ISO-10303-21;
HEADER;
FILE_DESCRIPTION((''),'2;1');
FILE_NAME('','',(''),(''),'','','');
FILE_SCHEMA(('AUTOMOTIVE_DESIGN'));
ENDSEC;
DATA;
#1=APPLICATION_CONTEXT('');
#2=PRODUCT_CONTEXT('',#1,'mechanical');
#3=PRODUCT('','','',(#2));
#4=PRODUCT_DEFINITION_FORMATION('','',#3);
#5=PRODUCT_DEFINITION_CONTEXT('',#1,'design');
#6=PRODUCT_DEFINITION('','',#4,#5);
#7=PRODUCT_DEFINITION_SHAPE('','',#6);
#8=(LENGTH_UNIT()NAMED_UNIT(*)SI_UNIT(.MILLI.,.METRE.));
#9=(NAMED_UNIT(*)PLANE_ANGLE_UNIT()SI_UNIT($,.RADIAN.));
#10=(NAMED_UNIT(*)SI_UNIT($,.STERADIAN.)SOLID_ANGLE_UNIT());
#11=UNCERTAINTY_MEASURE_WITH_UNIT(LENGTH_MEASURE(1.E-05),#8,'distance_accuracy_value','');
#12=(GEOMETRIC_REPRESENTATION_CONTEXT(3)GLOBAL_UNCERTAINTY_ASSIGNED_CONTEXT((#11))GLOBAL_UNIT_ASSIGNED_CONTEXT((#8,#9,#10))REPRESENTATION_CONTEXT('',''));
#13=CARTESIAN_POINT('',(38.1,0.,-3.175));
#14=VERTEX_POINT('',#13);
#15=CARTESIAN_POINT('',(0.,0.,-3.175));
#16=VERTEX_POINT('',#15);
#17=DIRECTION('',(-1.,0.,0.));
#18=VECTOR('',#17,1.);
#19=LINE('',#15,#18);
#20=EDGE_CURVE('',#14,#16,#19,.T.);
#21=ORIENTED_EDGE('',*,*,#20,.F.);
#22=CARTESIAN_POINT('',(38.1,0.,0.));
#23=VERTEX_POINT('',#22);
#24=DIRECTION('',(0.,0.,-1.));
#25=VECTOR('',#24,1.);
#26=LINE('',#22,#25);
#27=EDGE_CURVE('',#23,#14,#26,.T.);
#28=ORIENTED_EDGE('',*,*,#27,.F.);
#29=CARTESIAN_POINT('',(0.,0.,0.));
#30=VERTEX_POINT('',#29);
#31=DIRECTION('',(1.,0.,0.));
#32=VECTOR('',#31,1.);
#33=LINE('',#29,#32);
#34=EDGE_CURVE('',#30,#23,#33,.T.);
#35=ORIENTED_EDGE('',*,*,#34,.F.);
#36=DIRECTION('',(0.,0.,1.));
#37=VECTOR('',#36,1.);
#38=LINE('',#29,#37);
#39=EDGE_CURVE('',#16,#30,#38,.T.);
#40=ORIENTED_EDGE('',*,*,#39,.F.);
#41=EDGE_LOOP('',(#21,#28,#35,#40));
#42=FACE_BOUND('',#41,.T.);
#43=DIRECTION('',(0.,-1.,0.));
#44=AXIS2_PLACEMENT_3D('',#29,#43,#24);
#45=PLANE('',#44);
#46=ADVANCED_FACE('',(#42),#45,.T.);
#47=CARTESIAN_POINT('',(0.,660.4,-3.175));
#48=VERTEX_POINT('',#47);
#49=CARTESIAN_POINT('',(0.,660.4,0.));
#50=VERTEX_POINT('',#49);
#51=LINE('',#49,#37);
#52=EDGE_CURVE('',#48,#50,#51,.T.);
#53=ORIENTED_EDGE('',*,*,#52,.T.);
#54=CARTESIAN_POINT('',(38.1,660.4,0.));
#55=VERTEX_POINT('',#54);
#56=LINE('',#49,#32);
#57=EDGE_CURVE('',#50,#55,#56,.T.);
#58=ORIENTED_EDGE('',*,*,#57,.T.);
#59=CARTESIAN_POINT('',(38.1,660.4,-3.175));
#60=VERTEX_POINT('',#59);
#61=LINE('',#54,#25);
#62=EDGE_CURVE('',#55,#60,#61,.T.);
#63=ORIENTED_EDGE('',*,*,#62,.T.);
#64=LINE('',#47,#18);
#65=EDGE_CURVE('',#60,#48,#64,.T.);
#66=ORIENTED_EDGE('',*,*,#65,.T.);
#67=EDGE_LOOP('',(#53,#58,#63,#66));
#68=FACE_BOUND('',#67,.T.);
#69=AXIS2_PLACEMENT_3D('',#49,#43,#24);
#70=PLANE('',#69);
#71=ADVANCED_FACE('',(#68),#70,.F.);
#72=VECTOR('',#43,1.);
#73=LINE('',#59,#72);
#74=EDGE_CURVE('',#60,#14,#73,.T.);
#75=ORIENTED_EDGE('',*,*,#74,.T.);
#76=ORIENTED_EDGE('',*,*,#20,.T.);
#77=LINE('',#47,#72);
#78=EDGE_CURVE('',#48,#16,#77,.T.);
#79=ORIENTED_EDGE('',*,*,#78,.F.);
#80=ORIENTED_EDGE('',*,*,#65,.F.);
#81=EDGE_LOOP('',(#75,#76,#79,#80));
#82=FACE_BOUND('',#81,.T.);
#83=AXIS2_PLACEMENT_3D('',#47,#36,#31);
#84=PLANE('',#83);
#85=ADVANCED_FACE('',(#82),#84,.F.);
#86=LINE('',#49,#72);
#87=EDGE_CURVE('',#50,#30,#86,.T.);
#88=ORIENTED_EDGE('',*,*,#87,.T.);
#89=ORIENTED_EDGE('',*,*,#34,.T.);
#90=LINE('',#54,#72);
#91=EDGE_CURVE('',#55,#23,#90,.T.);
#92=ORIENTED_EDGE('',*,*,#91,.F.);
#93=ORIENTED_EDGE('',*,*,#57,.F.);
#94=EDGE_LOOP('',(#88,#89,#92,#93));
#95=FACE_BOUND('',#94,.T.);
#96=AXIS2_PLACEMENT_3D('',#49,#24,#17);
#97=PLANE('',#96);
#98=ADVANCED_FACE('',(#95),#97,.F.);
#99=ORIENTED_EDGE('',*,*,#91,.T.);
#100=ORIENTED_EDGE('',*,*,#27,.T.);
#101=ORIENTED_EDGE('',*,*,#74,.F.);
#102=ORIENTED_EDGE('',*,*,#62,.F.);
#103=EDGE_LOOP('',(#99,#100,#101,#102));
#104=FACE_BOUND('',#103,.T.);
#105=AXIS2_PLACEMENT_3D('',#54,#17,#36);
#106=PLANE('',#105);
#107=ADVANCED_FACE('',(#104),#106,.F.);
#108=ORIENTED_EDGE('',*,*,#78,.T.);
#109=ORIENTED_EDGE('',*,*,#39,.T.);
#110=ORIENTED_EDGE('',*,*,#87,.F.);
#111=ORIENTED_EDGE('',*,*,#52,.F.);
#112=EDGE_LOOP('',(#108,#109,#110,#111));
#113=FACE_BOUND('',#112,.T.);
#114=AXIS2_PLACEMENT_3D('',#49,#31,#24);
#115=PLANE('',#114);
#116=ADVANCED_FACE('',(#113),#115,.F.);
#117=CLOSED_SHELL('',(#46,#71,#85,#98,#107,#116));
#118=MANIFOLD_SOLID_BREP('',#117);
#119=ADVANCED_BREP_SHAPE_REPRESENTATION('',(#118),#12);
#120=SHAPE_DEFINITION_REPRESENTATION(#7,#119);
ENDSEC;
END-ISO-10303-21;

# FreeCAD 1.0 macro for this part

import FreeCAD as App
import Part
import Sketcher

V = App.Vector
Q = App.Units.Quantity

doc = App.newDocument("Part")
params = doc.addObject("Spreadsheet::Sheet", "Params")
for row, (alias, value) in enumerate([
    ("sketch1_width", "1.5 in"),
    ("sketch1_height", "0.125 in"),
    ("pad1_length", "26 in"),
], start=1):
    params.set(f"A{row}", alias)
    params.set(f"B{row}", "=" + value)
    params.setAlias(f"B{row}", alias)

body = doc.addObject("PartDesign::Body", "Body")

# Sketch on XZ plane
sketch1 = doc.addObject("Sketcher::SketchObject", "Sketch")
body.addObject(sketch1)
sketch1.AttachmentSupport = (doc.XZ_Plane, [""])
sketch1.MapMode = "FlatFace"
sketch1.addGeometry([
    Part.LineSegment(V(0, -3.2, 0), V(0, 0, 0)),
    Part.LineSegment(V(0, 0, 0), V(38.1, 0, 0)),
    Part.LineSegment(V(38.1, 0, 0), V(38.1, -3.2, 0)),
    Part.LineSegment(V(38.1, -3.2, 0), V(0, -3.2, 0)),
], False)
sketch1.addConstraint([
    Sketcher.Constraint("Coincident", 0, 2, 1, 1),
    Sketcher.Constraint("Coincident", 1, 2, 2, 1),
    Sketcher.Constraint("Coincident", 2, 2, 3, 1),
    Sketcher.Constraint("Coincident", 3, 2, 0, 1),
    Sketcher.Constraint("Vertical", 0),
    Sketcher.Constraint("Horizontal", 1),
    Sketcher.Constraint("Vertical", 2),
    Sketcher.Constraint("Horizontal", 3),
    Sketcher.Constraint("Coincident", 0, 2, -1, 1),
    Sketcher.Constraint("DistanceX", 1, 1, 1, 2, Q("1.5 in")),
    Sketcher.Constraint("DistanceY", 0, 1, 0, 2, Q("0.125 in")),
])
sketch1.setExpression("Constraints[9]", "Params.sketch1_width")
sketch1.setExpression("Constraints[10]", "Params.sketch1_height")
pad1 = doc.addObject("PartDesign::Pad", "Pad")
body.addObject(pad1)
pad1.Profile = sketch1
pad1.setExpression("Length", "Params.pad1_length")
pad1.Reversed = True

doc.recompute()
